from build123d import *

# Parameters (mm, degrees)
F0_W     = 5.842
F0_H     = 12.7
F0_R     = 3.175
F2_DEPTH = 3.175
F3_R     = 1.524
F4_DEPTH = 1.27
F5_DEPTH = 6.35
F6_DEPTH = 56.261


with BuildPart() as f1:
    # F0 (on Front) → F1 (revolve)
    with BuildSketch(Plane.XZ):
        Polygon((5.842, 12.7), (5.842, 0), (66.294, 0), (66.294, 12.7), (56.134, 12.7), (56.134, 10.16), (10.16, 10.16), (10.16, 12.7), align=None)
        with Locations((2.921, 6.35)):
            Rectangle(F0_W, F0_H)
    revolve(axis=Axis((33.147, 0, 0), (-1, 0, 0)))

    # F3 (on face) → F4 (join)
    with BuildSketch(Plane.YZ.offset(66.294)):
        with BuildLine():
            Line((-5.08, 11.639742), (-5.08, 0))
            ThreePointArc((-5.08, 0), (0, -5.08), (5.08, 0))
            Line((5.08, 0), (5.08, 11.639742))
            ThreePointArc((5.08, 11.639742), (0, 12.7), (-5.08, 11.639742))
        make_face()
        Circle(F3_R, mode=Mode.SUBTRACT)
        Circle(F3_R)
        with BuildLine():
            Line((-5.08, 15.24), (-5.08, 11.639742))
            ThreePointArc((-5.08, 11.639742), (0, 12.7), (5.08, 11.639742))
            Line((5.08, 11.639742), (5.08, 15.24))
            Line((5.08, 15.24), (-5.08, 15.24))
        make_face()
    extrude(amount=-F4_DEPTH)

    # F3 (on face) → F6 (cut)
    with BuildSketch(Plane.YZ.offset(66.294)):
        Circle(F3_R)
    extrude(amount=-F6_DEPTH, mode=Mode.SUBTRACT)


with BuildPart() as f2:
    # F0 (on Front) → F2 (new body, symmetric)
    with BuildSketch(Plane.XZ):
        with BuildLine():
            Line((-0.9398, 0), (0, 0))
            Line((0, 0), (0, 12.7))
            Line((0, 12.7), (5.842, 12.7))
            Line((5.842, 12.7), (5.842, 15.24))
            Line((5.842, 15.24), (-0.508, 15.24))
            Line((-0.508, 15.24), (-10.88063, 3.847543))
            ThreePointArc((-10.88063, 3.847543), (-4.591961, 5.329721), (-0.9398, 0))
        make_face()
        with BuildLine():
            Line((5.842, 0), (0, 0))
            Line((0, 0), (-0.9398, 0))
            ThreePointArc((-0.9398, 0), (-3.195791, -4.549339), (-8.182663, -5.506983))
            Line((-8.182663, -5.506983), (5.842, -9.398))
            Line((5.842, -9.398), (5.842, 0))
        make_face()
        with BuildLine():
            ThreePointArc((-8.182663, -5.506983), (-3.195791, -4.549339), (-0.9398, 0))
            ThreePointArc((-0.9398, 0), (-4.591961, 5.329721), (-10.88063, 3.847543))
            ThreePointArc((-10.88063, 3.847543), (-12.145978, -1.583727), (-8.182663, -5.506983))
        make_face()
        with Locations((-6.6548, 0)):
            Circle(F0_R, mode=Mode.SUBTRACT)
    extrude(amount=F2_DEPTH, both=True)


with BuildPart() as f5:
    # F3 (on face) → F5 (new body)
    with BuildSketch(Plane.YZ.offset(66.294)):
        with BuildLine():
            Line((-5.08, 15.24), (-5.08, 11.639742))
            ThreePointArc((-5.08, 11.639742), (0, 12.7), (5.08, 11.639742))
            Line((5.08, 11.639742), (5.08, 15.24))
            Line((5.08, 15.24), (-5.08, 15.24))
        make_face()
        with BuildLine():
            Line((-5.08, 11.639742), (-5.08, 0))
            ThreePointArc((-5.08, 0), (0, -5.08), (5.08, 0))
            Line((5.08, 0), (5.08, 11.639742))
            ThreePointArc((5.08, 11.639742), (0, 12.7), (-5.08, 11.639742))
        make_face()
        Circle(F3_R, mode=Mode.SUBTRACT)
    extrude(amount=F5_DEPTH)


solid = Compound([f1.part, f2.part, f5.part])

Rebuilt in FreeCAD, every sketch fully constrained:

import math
import FreeCAD as App
import Part
import Sketcher
from FreeCAD import Vector
Q = App.Units.Quantity


def add_polygon(sketch, points):
    """Adds a closed chain of lines whose ends are joined by coincident constraints."""
    first, n = sketch.GeometryCount, len(points)
    for a, b in zip(points, points[1:] + points[:1]):
        sketch.addGeometry(Part.LineSegment(App.Vector(*a, 0), App.Vector(*b, 0)), False)
    for i in range(n):
        sketch.addConstraint(Sketcher.Constraint("Coincident", first + i, 2, first + (i + 1) % n, 1))

doc = App.newDocument("Part")
body = doc.addObject("PartDesign::Body", "Body")

# Sketch on XZ plane
sketch1 = body.newObject("Sketcher::SketchObject", "Sketch")
sketch1.AttachmentSupport = (doc.getObject("XZ_Plane"), [""])
sketch1.MapMode = "FlatFace"
add_polygon(sketch1, [(66.294, 0), (66.294, 12.7), (56.134, 12.7), (56.134, 10.16), (10.16, 10.16), (10.16, 12.7), (0, 12.7), (0, 0)])  # lines 0-7
sketch1.addConstraint(Sketcher.Constraint("Vertical", 0))
sketch1.addConstraint(Sketcher.Constraint("Horizontal", 1))
sketch1.addConstraint(Sketcher.Constraint("Vertical", 2))
sketch1.addConstraint(Sketcher.Constraint("Horizontal", 3))
sketch1.addConstraint(Sketcher.Constraint("Vertical", 4))
sketch1.addConstraint(Sketcher.Constraint("Horizontal", 5))
sketch1.addConstraint(Sketcher.Constraint("Vertical", 6))
sketch1.addConstraint(Sketcher.Constraint("Horizontal", 7))
sketch1.addConstraint(Sketcher.Constraint("Coincident", 6, 2, -1, 1))
sketch1.addConstraint(Sketcher.Constraint("Horizontal", 1, 2, 4, 2))
sketch1.addConstraint(Sketcher.Constraint("Equal", 1, 5))
sketch1.addConstraint(Sketcher.Constraint("DistanceX", 1, 2, 1, 1, Q("0.4 in")))
sketch1.addConstraint(Sketcher.Constraint("DistanceY", 0, 1, 0, 2, Q("0.5 in")))
sketch1.addConstraint(Sketcher.Constraint("DistanceY", 2, 2, 2, 1, Q("0.1 in")))
sketch1.addConstraint(Sketcher.Constraint("DistanceX", 3, 2, 3, 1, Q("1.81 in")))
revolution = body.newObject("PartDesign::Revolution", "Revolution")
revolution.Profile = sketch1
revolution.ReferenceAxis = (sketch1, ["H_Axis"])
revolution.Angle = 360

# Sketch on YZ plane
sketch2 = body.newObject("Sketcher::SketchObject", "Sketch001")
sketch2.AttachmentSupport = (doc.getObject("YZ_Plane"), [""])
sketch2.MapMode = "FlatFace"
sketch2.AttachmentOffset = App.Placement(Vector(0, 0, 2.61 * 25.4), App.Rotation())
sketch2.addGeometry(Part.ArcOfCircle(Part.Circle(Vector(0, 0, 0), Vector(0, 0, 1), 5.08), math.radians(180), math.radians(360)), False)
sketch2.addGeometry(Part.LineSegment(Vector(5.08, 0, 0), Vector(5.08, 15.24, 0)), False)
sketch2.addGeometry(Part.LineSegment(Vector(5.08, 15.24, 0), Vector(-5.08, 15.24, 0)), False)
sketch2.addGeometry(Part.LineSegment(Vector(-5.08, 15.24, 0), Vector(-5.08, 0, 0)), False)
sketch2.addConstraint(Sketcher.Constraint("Tangent", 0, 2, 1, 1))
sketch2.addConstraint(Sketcher.Constraint("Coincident", 1, 2, 2, 1))
sketch2.addConstraint(Sketcher.Constraint("Coincident", 2, 2, 3, 1))
sketch2.addConstraint(Sketcher.Constraint("Tangent", 3, 2, 0, 1))
sketch2.addConstraint(Sketcher.Constraint("Vertical", 1))
sketch2.addConstraint(Sketcher.Constraint("Horizontal", 2))
sketch2.addConstraint(Sketcher.Constraint("Vertical", 3))
sketch2.addConstraint(Sketcher.Constraint("Coincident", 0, 3, -1, 1))
sketch2.addConstraint(Sketcher.Constraint("Radius", 0, Q("0.2 in")))
sketch2.addConstraint(Sketcher.Constraint("DistanceY", 1, 1, 1, 2, Q("0.6 in")))
pad1 = body.newObject("PartDesign::Pad", "Pad")
pad1.Profile = sketch2
pad1.Length = Q("0.05 in")
pad1.Reversed = True

# Sketch on YZ plane
sketch3 = body.newObject("Sketcher::SketchObject", "Sketch002")
sketch3.AttachmentSupport = (doc.getObject("YZ_Plane"), [""])
sketch3.MapMode = "FlatFace"
sketch3.AttachmentOffset = App.Placement(Vector(0, 0, 2.61 * 25.4), App.Rotation())
sketch3.addGeometry(Part.Circle(Vector(0, 0, 0), Vector(0, 0, 1), 1.524), False)
sketch3.addConstraint(Sketcher.Constraint("Coincident", 0, 3, -1, 1))
sketch3.addConstraint(Sketcher.Constraint("Diameter", 0, Q("0.12 in")))
pocket1 = body.newObject("PartDesign::Pocket", "Pocket")
pocket1.Profile = sketch3
pocket1.Length = Q("2.215 in")
body2 = doc.addObject("PartDesign::Body", "Body001")

# Sketch on XZ plane
sketch4 = body2.newObject("Sketcher::SketchObject", "Sketch003")
sketch4.AttachmentSupport = (doc.getObject("XZ_Plane001"), [""])
sketch4.MapMode = "FlatFace"
sketch4.addGeometry(Part.LineSegment(Vector(0, 0, 0), Vector(0, 12.7, 0)), False)
sketch4.addGeometry(Part.LineSegment(Vector(0, 12.7, 0), Vector(5.842, 12.7, 0)), False)
sketch4.addGeometry(Part.LineSegment(Vector(5.842, 12.7, 0), Vector(5.842, 15.24, 0)), False)
sketch4.addGeometry(Part.LineSegment(Vector(5.842, 15.24, 0), Vector(-0.508, 15.24, 0)), False)
sketch4.addGeometry(Part.LineSegment(Vector(-0.508, 15.24, 0), Vector(-10.88063, 3.847543, 0)), False)
sketch4.addGeometry(Part.ArcOfCircle(Part.Circle(Vector(-6.6548, 0, 0), Vector(0, 0, 1), 5.715), math.radians(137.682696), math.radians(254.493803)), False)
sketch4.addGeometry(Part.LineSegment(Vector(-8.182663, -5.506983, 0), Vector(5.842, -9.398, 0)), False)
sketch4.addGeometry(Part.LineSegment(Vector(5.842, -9.398, 0), Vector(5.842, 0, 0)), False)
sketch4.addGeometry(Part.LineSegment(Vector(5.842, 0, 0), Vector(0, 0, 0)), False)
sketch4.addGeometry(Part.Circle(Vector(-6.6548, 0, 0), Vector(0, 0, 1), 3.175), False)
sketch4.addConstraint(Sketcher.Constraint("Coincident", 0, 2, 1, 1))
sketch4.addConstraint(Sketcher.Constraint("Coincident", 1, 2, 2, 1))
sketch4.addConstraint(Sketcher.Constraint("Coincident", 2, 2, 3, 1))
sketch4.addConstraint(Sketcher.Constraint("Coincident", 3, 2, 4, 1))
sketch4.addConstraint(Sketcher.Constraint("Tangent", 4, 2, 5, 1))
sketch4.addConstraint(Sketcher.Constraint("Tangent", 5, 2, 6, 1))
sketch4.addConstraint(Sketcher.Constraint("Coincident", 6, 2, 7, 1))
sketch4.addConstraint(Sketcher.Constraint("Coincident", 7, 2, 8, 1))
sketch4.addConstraint(Sketcher.Constraint("Coincident", 8, 2, 0, 1))
sketch4.addConstraint(Sketcher.Constraint("Vertical", 0))
sketch4.addConstraint(Sketcher.Constraint("Horizontal", 1))
sketch4.addConstraint(Sketcher.Constraint("Vertical", 2))
sketch4.addConstraint(Sketcher.Constraint("Horizontal", 3))
sketch4.addConstraint(Sketcher.Constraint("Vertical", 7))
sketch4.addConstraint(Sketcher.Constraint("Horizontal", 8))
sketch4.addConstraint(Sketcher.Constraint("Coincident", 8, 2, -1, 1))
sketch4.addConstraint(Sketcher.Constraint("Coincident", 9, 3, 5, 3))
sketch4.addConstraint(Sketcher.Constraint("PointOnObject", 5, 3, -1))
sketch4.addConstraint(Sketcher.Constraint("Vertical", 2, 2, 6, 2))
sketch4.addConstraint(Sketcher.Constraint("Diameter", 9, Q("0.25 in")))
sketch4.addConstraint(Sketcher.Constraint("DistanceY", 0, 1, 0, 2, Q("0.5 in")))
sketch4.addConstraint(Sketcher.Constraint("DistanceY", 2, 1, 2, 2, Q("0.1 in")))
sketch4.addConstraint(Sketcher.Constraint("Radius", 5, Q("0.225 in")))
sketch4.addConstraint(Sketcher.Constraint("DistanceX", 1, 1, 1, 2, Q("0.23 in")))
sketch4.addConstraint(Sketcher.Constraint("DistanceX", 3, 2, 3, 1, Q("0.25 in")))
sketch4.addConstraint(Sketcher.Constraint("DistanceY", 7, 1, 7, 2, Q("0.37 in")))
sketch4.addConstraint(Sketcher.Constraint("DistanceX", 5, 3, -1, 1, Q("0.262 in")))
pad2 = body2.newObject("PartDesign::Pad", "Pad001")
pad2.Profile = sketch4
pad2.Length = Q("0.25 in")
pad2.Midplane = True
body3 = doc.addObject("PartDesign::Body", "Body002")

# Sketch on YZ plane
sketch5 = body3.newObject("Sketcher::SketchObject", "Sketch004")
sketch5.AttachmentSupport = (doc.getObject("YZ_Plane002"), [""])
sketch5.MapMode = "FlatFace"
sketch5.AttachmentOffset = App.Placement(Vector(0, 0, 2.61 * 25.4), App.Rotation())
sketch5.addGeometry(Part.LineSegment(Vector(-5.08, 15.24, 0), Vector(-5.08, 0, 0)), False)
sketch5.addGeometry(Part.ArcOfCircle(Part.Circle(Vector(0, 0, 0), Vector(0, 0, 1), 5.08), math.radians(180), math.radians(360)), False)
sketch5.addGeometry(Part.LineSegment(Vector(5.08, 0, 0), Vector(5.08, 15.24, 0)), False)
sketch5.addGeometry(Part.LineSegment(Vector(5.08, 15.24, 0), Vector(-5.08, 15.24, 0)), False)
sketch5.addGeometry(Part.Circle(Vector(0, 0, 0), Vector(0, 0, 1), 1.524), False)
sketch5.addConstraint(Sketcher.Constraint("Tangent", 0, 2, 1, 1))
sketch5.addConstraint(Sketcher.Constraint("Tangent", 1, 2, 2, 1))
sketch5.addConstraint(Sketcher.Constraint("Coincident", 2, 2, 3, 1))
sketch5.addConstraint(Sketcher.Constraint("Coincident", 3, 2, 0, 1))
sketch5.addConstraint(Sketcher.Constraint("Vertical", 0))
sketch5.addConstraint(Sketcher.Constraint("Vertical", 2))
sketch5.addConstraint(Sketcher.Constraint("Horizontal", 3))
sketch5.addConstraint(Sketcher.Constraint("Coincident", 1, 3, -1, 1))
sketch5.addConstraint(Sketcher.Constraint("Coincident", 4, 3, -1, 1))
sketch5.addConstraint(Sketcher.Constraint("Radius", 1, Q("0.2 in")))
sketch5.addConstraint(Sketcher.Constraint("Diameter", 4, Q("0.12 in")))
sketch5.addConstraint(Sketcher.Constraint("DistanceY", 0, 2, 0, 1, Q("0.6 in")))
pad3 = body3.newObject("PartDesign::Pad", "Pad002")
pad3.Profile = sketch5
pad3.Length = Q("0.25 in")

doc.recompute()
